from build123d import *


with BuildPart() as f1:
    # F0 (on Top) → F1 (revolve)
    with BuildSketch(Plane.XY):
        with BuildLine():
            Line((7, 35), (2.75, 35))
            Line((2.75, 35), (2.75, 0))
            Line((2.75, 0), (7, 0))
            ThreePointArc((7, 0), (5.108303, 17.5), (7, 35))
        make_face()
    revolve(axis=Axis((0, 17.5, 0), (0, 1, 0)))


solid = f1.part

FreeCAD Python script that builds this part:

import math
import FreeCAD as App
import Part
import Sketcher

V = App.Vector

doc = App.newDocument("Part")
params = doc.addObject("Spreadsheet::Sheet", "Params")
for row, (alias, value) in enumerate([
    ("sketch1_height", "35 mm"),
    ("sketch1_width", "4.25 mm"),
    ("revolution_angle", "360 deg"),
], start=1):
    params.set(f"A{row}", alias)
    params.set(f"B{row}", "=" + value)
    params.setAlias(f"B{row}", alias)

body = doc.addObject("PartDesign::Body", "Body")

sketch1 = body.newObject("Sketcher::SketchObject", "Sketch")
sketch1.AttachmentSupport = (doc.getObject("XY_Plane"), [""])
sketch1.MapMode = "FlatFace"
sketch1.addGeometry([
    Part.LineSegment(V(7, 35, 0), V(2.8, 35, 0)),
    Part.LineSegment(V(2.8, 35, 0), V(2.8, 0, 0)),
    Part.LineSegment(V(2.8, 0, 0), V(7, 0, 0)),
    Part.ArcOfCircle(Part.Circle(V(87, 17.5, 0), V(0, 0, 1), 81.9), math.radians(168), math.radians(192)),
], False)
sketch1.addConstraint([
    Sketcher.Constraint("Coincident", 0, 2, 1, 1),
    Sketcher.Constraint("Coincident", 1, 2, 2, 1),
    Sketcher.Constraint("Coincident", 2, 2, 3, 2),
    Sketcher.Constraint("Coincident", 3, 1, 0, 1),
    Sketcher.Constraint("Horizontal", 0),
    Sketcher.Constraint("Vertical", 1),
    Sketcher.Constraint("Horizontal", 2),
    Sketcher.Constraint("PointOnObject", 1, 2, -1),
    Sketcher.Constraint("Vertical", 2, 2, 3, 1),
    Sketcher.Constraint("DistanceY", 1, 2, 1, 1, 35.0),
    Sketcher.Constraint("DistanceX", -1, 1, 2, 2, 7.0),
    Sketcher.Constraint("DistanceX", 0, 2, 0, 1, 4.25),
    Sketcher.Constraint("Radius", 3, 81.891687),
])
sketch1.setExpression("Constraints[9]", "Params.sketch1_height")
sketch1.setExpression("Constraints[11]", "Params.sketch1_width")
revolution = body.newObject("PartDesign::Revolution", "Revolution")
revolution.Profile = sketch1
revolution.ReferenceAxis = (sketch1, ["V_Axis"])
revolution.setExpression("Angle", "Params.revolution_angle")

doc.recompute()
